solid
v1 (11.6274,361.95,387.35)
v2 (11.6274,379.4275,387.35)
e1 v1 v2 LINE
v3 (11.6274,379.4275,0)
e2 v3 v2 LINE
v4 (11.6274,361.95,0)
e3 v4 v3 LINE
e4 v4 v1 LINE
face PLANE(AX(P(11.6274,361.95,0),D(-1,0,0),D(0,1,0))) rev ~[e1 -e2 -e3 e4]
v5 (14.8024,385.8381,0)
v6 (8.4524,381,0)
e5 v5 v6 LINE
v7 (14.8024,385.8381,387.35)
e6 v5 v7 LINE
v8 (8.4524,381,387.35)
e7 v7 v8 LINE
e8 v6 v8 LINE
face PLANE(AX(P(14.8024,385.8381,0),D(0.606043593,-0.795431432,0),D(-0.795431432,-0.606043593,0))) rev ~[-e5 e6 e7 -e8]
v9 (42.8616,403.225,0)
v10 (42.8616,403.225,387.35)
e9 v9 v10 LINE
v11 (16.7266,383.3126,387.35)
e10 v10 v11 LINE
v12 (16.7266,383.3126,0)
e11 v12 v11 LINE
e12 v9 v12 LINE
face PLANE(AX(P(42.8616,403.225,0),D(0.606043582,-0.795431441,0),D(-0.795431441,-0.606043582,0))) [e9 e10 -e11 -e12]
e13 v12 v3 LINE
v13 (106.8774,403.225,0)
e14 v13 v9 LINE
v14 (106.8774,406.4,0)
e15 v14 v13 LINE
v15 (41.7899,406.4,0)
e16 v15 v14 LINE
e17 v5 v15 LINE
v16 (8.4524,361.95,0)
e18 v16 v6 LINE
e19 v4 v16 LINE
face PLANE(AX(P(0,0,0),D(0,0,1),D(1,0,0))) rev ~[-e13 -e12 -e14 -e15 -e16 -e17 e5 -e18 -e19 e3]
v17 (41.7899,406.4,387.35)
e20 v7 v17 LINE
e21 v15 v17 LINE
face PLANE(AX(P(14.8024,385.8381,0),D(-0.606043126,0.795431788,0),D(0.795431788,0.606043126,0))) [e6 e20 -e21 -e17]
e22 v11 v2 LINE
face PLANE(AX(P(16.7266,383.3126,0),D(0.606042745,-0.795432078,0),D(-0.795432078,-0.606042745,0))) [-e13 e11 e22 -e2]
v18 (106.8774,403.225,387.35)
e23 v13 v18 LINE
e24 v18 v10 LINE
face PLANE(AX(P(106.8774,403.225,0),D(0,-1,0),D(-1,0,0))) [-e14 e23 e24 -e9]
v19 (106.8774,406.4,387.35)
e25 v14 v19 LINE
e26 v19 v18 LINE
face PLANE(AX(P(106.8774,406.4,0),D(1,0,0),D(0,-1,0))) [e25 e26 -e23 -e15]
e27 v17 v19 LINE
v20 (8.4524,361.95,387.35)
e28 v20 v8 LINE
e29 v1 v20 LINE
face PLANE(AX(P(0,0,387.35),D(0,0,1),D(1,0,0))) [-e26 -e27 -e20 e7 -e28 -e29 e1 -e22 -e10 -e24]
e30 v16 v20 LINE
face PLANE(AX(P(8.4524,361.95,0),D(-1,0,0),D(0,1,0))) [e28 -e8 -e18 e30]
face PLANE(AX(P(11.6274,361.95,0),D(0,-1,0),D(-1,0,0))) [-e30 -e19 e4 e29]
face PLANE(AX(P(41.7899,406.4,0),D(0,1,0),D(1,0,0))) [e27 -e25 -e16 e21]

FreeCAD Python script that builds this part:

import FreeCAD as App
import Part
import Sketcher

V = App.Vector
Q = App.Units.Quantity


def add_polygon(sketch, points):
    """Adds a closed chain of lines whose ends are joined by coincident constraints."""
    first, n = sketch.GeometryCount, len(points)
    for a, b in zip(points, points[1:] + points[:1]):
        sketch.addGeometry(Part.LineSegment(App.Vector(*a, 0), App.Vector(*b, 0)), False)
    for i in range(n):
        sketch.addConstraint(Sketcher.Constraint("Coincident", first + i, 2, first + (i + 1) % n, 1))

doc = App.newDocument("Part")
body = doc.addObject("PartDesign::Body", "Body")

sketch1 = body.newObject("Sketcher::SketchObject", "Sketch")
sketch1.AttachmentSupport = (doc.getObject("XY_Plane"), [""])
sketch1.MapMode = "FlatFace"
add_polygon(sketch1, [(106.9, 406.4), (41.8, 406.4), (14.8, 385.8), (8.5, 381), (8.5, 361.9), (11.6, 361.9), (11.6, 379.4), (16.7, 383.3), (42.9, 403.2), (106.9, 403.2)])
sketch1.addConstraint([
    Sketcher.Constraint("Horizontal", 0),
    Sketcher.Constraint("Vertical", 3),
    Sketcher.Constraint("Horizontal", 4),
    Sketcher.Constraint("Vertical", 5),
    Sketcher.Constraint("Horizontal", 8),
    Sketcher.Constraint("Vertical", 9),
    Sketcher.Constraint("Parallel", 1, 2),
    Sketcher.Constraint("Parallel", 2, 6),
    Sketcher.Constraint("Parallel", 6, 7),
    Sketcher.Constraint("Equal", 4, 9),
    Sketcher.Constraint("DistanceX", 4, 1, 4, 2, Q("0.125 in")),
    Sketcher.Constraint("DistanceY", -1, 1, 0, 2, Q("16 in")),
    Sketcher.Constraint("DistanceY", -1, 1, 2, 2, Q("15 in")),
    Sketcher.Constraint("DistanceX", 4, 2, 1, 2, Q("0.125 in")),
    Sketcher.Constraint("DistanceY", 3, 2, 3, 1, Q("0.75 in")),
    Sketcher.Constraint("DistanceX", 0, 2, 0, 1, Q("2.5625 in")),
    Sketcher.Constraint("DistanceX", 5, 2, 8, 2, Q("3.75 in")),
    Sketcher.Constraint("DistanceX", 8, 1, 8, 2, Q("2.5203 in")),
    Sketcher.Constraint("Distance", 6, Q("6.4106 mm")),
    Sketcher.Constraint("DistanceX", -1, 1, 0, 2, Q("41.79 mm")),
])
pad1 = body.newObject("PartDesign::Pad", "Pad")
pad1.Profile = sketch1
pad1.Length = Q("15.25 in")

doc.recompute()
